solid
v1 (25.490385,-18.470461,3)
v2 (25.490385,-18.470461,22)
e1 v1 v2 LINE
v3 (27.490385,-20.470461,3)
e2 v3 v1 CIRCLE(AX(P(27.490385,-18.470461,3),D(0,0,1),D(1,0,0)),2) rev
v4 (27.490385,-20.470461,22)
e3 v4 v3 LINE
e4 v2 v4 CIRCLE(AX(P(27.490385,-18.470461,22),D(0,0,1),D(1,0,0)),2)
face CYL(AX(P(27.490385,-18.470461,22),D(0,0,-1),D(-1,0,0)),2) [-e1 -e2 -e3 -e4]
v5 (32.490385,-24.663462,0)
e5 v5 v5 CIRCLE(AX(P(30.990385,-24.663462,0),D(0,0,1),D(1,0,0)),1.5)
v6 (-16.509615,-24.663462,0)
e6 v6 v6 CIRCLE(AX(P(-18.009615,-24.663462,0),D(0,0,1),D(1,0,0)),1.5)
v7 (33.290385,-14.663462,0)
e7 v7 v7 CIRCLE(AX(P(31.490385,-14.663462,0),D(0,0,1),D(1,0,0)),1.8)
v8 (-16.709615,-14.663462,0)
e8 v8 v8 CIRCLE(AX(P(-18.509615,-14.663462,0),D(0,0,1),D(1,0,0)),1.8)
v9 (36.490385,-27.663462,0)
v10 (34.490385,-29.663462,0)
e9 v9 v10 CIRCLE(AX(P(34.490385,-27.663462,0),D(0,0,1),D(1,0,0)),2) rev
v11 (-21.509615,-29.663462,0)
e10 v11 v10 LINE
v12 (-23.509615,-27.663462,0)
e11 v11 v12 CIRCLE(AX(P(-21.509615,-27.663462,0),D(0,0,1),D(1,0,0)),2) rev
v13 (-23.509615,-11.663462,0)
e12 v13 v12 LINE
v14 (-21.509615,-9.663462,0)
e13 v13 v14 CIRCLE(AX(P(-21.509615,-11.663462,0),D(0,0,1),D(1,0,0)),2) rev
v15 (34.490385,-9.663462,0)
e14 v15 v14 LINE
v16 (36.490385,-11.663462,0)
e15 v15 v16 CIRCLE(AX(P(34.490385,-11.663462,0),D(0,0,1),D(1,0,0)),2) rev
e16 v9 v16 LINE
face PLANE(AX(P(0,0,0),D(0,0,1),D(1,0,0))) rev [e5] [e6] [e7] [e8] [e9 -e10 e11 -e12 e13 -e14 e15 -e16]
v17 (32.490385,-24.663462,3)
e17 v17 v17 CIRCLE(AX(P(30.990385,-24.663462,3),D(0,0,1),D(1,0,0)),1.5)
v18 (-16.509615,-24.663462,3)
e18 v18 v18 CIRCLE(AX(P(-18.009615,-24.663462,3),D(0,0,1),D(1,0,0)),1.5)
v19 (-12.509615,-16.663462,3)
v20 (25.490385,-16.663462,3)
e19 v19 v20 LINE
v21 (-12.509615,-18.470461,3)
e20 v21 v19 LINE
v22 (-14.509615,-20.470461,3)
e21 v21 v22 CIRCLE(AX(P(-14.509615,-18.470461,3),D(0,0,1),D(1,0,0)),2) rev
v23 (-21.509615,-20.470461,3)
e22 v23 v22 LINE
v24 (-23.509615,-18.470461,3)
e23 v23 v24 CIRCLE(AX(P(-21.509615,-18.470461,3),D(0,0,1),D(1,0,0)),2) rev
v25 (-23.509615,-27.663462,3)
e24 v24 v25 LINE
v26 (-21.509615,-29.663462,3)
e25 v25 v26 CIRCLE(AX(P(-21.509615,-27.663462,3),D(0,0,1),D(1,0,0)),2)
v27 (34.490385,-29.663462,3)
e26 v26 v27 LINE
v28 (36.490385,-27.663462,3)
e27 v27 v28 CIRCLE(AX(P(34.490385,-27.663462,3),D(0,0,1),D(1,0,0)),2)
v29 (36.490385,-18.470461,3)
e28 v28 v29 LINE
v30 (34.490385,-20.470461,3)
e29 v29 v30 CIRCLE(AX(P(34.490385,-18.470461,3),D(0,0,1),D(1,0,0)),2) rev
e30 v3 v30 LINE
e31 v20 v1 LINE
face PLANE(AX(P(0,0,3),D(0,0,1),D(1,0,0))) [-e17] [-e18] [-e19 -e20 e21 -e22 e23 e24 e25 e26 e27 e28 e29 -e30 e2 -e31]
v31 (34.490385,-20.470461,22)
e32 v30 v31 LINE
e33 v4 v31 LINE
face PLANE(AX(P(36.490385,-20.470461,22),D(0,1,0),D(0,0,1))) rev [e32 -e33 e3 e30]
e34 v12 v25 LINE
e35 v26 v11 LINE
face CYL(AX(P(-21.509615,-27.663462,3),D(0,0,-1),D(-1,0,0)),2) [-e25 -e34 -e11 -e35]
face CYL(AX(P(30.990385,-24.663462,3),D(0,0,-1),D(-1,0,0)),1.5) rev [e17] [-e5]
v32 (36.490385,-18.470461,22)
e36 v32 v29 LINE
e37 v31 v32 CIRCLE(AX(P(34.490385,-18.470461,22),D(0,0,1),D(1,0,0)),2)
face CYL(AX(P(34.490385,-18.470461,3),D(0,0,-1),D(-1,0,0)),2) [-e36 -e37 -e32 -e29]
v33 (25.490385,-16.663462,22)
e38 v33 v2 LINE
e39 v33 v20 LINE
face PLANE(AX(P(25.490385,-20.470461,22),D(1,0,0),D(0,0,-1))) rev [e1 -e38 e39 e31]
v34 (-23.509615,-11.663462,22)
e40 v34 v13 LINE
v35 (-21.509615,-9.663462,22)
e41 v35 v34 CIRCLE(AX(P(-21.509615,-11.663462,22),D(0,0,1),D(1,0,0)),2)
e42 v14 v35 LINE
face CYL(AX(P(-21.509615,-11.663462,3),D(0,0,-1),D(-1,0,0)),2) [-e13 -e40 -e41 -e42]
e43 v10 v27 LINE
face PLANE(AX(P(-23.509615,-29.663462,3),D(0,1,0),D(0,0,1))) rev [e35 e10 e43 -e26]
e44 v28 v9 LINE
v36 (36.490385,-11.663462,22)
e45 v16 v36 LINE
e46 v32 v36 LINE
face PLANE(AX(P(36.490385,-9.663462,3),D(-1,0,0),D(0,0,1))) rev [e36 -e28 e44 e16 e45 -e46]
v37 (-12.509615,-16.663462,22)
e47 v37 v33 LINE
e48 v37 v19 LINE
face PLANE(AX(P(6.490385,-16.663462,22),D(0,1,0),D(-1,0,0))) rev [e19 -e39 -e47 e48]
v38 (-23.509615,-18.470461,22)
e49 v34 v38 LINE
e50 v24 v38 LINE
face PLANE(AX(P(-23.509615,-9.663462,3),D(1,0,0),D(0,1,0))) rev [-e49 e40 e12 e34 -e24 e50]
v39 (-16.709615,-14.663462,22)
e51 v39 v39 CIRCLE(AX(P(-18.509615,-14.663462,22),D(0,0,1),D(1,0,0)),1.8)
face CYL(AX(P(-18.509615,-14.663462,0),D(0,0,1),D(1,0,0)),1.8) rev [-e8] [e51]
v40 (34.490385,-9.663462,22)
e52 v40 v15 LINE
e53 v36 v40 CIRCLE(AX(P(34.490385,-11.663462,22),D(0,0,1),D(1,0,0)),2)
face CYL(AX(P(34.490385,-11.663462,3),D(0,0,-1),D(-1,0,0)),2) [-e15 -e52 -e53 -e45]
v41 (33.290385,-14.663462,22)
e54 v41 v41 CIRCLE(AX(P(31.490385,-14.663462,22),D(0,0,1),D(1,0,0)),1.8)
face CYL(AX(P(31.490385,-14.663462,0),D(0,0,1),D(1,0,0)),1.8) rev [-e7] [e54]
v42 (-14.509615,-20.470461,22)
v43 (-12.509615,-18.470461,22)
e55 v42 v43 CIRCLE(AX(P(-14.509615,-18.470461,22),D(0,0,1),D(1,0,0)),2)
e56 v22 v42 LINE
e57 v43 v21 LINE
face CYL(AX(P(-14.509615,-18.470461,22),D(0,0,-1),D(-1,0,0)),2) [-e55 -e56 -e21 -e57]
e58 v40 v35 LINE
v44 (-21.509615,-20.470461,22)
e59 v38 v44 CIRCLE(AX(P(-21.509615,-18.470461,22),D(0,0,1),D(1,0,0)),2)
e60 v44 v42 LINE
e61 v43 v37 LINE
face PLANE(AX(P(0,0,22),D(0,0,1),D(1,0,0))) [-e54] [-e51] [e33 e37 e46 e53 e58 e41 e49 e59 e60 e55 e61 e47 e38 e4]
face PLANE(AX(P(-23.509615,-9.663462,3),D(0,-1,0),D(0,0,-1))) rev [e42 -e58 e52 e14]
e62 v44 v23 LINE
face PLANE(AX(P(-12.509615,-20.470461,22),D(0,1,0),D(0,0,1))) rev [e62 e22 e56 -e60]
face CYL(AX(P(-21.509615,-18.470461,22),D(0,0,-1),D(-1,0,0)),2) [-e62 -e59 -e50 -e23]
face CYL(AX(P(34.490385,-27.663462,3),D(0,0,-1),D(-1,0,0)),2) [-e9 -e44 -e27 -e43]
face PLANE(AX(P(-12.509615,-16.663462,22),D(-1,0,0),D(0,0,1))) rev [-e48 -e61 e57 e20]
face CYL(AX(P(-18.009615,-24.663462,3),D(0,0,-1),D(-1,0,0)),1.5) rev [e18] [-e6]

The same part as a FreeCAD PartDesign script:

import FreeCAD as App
import Part
import Sketcher

V = App.Vector


def edges_at(feature, points):
    """Names of the edges that pass closest to the given points."""
    edges = feature.Shape.Edges
    near = lambda p: min(range(len(edges)), key=lambda i: edges[i].distToShape(Part.Vertex(*p))[0])
    return sorted({f"Edge{near(p) + 1}" for p in points})

doc = App.newDocument("Part")
body = doc.addObject("PartDesign::Body", "Body")

# Sketch on XY plane
sketch1 = body.newObject("Sketcher::SketchObject", "Sketch")
sketch1.AttachmentSupport = (doc.getObject("XY_Plane"), [""])
sketch1.MapMode = "FlatFace"
sketch1.addGeometry([
    Part.LineSegment(V(-23.5, -9.7, 0), V(-23.5, -29.7, 0)),  # 0
    Part.LineSegment(V(-23.5, -29.7, 0), V(36.5, -29.7, 0)),  # 1
    Part.LineSegment(V(36.5, -29.7, 0), V(36.5, -9.7, 0)),  # 2
    Part.LineSegment(V(36.5, -9.7, 0), V(-23.5, -9.7, 0)),  # 3
    Part.Circle(V(-18, -24.7, 0), V(0, 0, 1), 1.5),  # 4
    Part.Circle(V(31, -24.7, 0), V(0, 0, 1), 1.5),  # 5
], False)
sketch1.addConstraint([
    Sketcher.Constraint("Coincident", 0, 2, 1, 1),
    Sketcher.Constraint("Coincident", 1, 2, 2, 1),
    Sketcher.Constraint("Coincident", 2, 2, 3, 1),
    Sketcher.Constraint("Coincident", 3, 2, 0, 1),
    Sketcher.Constraint("Vertical", 0),
    Sketcher.Constraint("Horizontal", 1),
    Sketcher.Constraint("Vertical", 2),
    Sketcher.Constraint("Horizontal", 3),
    Sketcher.Constraint("Equal", 4, 5),
    Sketcher.Constraint("Horizontal", 4, 3, 5, 3),
    Sketcher.Constraint("Diameter", 4, 3.0),
    Sketcher.Constraint("DistanceX", 1, 1, 1, 2, 60.0),
    Sketcher.Constraint("DistanceY", 0, 2, 0, 1, 20.0),
    Sketcher.Constraint("DistanceX", 4, 3, 5, 3, 49.0),
    Sketcher.Constraint("DistanceY", 0, 2, 4, 3, 5.0),
    Sketcher.Constraint("DistanceX", 0, 2, 4, 3, 5.5),
    Sketcher.Constraint("DistanceY", 4, 3, -1, 1, 24.663462),
    Sketcher.Constraint("DistanceX", 4, 3, -1, 1, 18.009615),
])
pad1 = body.newObject("PartDesign::Pad", "Pad")
pad1.Profile = sketch1
pad1.Length = 3

# Sketch on XY plane
sketch2 = body.newObject("Sketcher::SketchObject", "Sketch001")
sketch2.AttachmentSupport = (doc.getObject("XY_Plane"), [""])
sketch2.MapMode = "FlatFace"
sketch2.AttachmentOffset = App.Placement(V(0, 0, 3), App.Rotation())
sketch2.addGeometry([
    Part.LineSegment(V(25.5, -16.7, 0), V(25.5, -20.5, 0)),  # 0
    Part.LineSegment(V(25.5, -20.5, 0), V(36.5, -20.5, 0)),  # 1
    Part.LineSegment(V(36.5, -20.5, 0), V(36.5, -9.7, 0)),  # 2
    Part.LineSegment(V(36.5, -9.7, 0), V(-23.5, -9.7, 0)),  # 3
    Part.LineSegment(V(-23.5, -9.7, 0), V(-23.5, -20.5, 0)),  # 4
    Part.LineSegment(V(-23.5, -20.5, 0), V(-12.5, -20.5, 0)),  # 5
    Part.LineSegment(V(-12.5, -20.5, 0), V(-12.5, -16.7, 0)),  # 6
    Part.LineSegment(V(-12.5, -16.7, 0), V(25.5, -16.7, 0)),  # 7
], False)
sketch2.addConstraint([
    Sketcher.Constraint("Coincident", 0, 2, 1, 1),
    Sketcher.Constraint("Coincident", 1, 2, 2, 1),
    Sketcher.Constraint("Coincident", 2, 2, 3, 1),
    Sketcher.Constraint("Coincident", 3, 2, 4, 1),
    Sketcher.Constraint("Coincident", 4, 2, 5, 1),
    Sketcher.Constraint("Coincident", 5, 2, 6, 1),
    Sketcher.Constraint("Coincident", 6, 2, 7, 1),
    Sketcher.Constraint("Coincident", 7, 2, 0, 1),
    Sketcher.Constraint("Vertical", 0),
    Sketcher.Constraint("Horizontal", 1),
    Sketcher.Constraint("Vertical", 2),
    Sketcher.Constraint("Horizontal", 3),
    Sketcher.Constraint("Vertical", 4),
    Sketcher.Constraint("Horizontal", 5),
    Sketcher.Constraint("Vertical", 6),
    Sketcher.Constraint("Horizontal", 7),
    Sketcher.Constraint("Horizontal", 1, 2, 4, 2),
    Sketcher.Constraint("Equal", 1, 5),
    Sketcher.Constraint("DistanceX", 1, 1, 1, 2, 11.0),
    Sketcher.Constraint("DistanceX", 3, 2, 3, 1, 60.0),
    Sketcher.Constraint("DistanceY", 6, 2, 3, 2, 7.0),
    Sketcher.Constraint("DistanceY", 0, 2, 0, 1, 3.807),
    Sketcher.Constraint("DistanceY", 0, 2, -1, 1, 20.470461),
    Sketcher.Constraint("DistanceX", -1, 1, 0, 2, 25.490385),
])
pad2 = body.newObject("PartDesign::Pad", "Pad001")
pad2.Profile = sketch2
pad2.Length = 19

# Sketch on XY plane
sketch3 = body.newObject("Sketcher::SketchObject", "Sketch002")
sketch3.AttachmentSupport = (doc.getObject("XY_Plane"), [""])
sketch3.MapMode = "FlatFace"
sketch3.AttachmentOffset = App.Placement(V(0, 0, 22), App.Rotation())
sketch3.addGeometry([
    Part.Circle(V(31.5, -14.7, 0), V(0, 0, 1), 1.8),
    Part.Circle(V(-18.5, -14.7, 0), V(0, 0, 1), 1.8),
], False)
sketch3.addConstraint([
    Sketcher.Constraint("Equal", 0, 1),
    Sketcher.Constraint("Horizontal", 0, 3, 1, 3),
    Sketcher.Constraint("Diameter", 0, 3.6),
    Sketcher.Constraint("DistanceX", 1, 3, 0, 3, 50.0),
    Sketcher.Constraint("DistanceY", 0, 3, -1, 1, 14.663462),
    Sketcher.Constraint("DistanceX", -1, 1, 0, 3, 31.490385),
])
pocket1 = body.newObject("PartDesign::Pocket", "Pocket")
pocket1.Profile = sketch3
pocket1.Type = "ThroughAll"
doc.recompute()

fillet = body.newObject("PartDesign::Fillet", "Fillet")
fillet.Base = (pocket1, edges_at(pocket1, [
    (25.49, -20.47, 12.5),
    (36.49, -20.47, 12.5),
    (-23.51, -20.47, 12.5),
    (-12.51, -20.47, 12.5),
    (-23.51, -9.663, 11),
    (36.49, -9.663, 11),
    (36.49, -29.663, 1.5),
    (-23.51, -29.663, 1.5),
]))
fillet.Radius = 2

doc.recompute()
